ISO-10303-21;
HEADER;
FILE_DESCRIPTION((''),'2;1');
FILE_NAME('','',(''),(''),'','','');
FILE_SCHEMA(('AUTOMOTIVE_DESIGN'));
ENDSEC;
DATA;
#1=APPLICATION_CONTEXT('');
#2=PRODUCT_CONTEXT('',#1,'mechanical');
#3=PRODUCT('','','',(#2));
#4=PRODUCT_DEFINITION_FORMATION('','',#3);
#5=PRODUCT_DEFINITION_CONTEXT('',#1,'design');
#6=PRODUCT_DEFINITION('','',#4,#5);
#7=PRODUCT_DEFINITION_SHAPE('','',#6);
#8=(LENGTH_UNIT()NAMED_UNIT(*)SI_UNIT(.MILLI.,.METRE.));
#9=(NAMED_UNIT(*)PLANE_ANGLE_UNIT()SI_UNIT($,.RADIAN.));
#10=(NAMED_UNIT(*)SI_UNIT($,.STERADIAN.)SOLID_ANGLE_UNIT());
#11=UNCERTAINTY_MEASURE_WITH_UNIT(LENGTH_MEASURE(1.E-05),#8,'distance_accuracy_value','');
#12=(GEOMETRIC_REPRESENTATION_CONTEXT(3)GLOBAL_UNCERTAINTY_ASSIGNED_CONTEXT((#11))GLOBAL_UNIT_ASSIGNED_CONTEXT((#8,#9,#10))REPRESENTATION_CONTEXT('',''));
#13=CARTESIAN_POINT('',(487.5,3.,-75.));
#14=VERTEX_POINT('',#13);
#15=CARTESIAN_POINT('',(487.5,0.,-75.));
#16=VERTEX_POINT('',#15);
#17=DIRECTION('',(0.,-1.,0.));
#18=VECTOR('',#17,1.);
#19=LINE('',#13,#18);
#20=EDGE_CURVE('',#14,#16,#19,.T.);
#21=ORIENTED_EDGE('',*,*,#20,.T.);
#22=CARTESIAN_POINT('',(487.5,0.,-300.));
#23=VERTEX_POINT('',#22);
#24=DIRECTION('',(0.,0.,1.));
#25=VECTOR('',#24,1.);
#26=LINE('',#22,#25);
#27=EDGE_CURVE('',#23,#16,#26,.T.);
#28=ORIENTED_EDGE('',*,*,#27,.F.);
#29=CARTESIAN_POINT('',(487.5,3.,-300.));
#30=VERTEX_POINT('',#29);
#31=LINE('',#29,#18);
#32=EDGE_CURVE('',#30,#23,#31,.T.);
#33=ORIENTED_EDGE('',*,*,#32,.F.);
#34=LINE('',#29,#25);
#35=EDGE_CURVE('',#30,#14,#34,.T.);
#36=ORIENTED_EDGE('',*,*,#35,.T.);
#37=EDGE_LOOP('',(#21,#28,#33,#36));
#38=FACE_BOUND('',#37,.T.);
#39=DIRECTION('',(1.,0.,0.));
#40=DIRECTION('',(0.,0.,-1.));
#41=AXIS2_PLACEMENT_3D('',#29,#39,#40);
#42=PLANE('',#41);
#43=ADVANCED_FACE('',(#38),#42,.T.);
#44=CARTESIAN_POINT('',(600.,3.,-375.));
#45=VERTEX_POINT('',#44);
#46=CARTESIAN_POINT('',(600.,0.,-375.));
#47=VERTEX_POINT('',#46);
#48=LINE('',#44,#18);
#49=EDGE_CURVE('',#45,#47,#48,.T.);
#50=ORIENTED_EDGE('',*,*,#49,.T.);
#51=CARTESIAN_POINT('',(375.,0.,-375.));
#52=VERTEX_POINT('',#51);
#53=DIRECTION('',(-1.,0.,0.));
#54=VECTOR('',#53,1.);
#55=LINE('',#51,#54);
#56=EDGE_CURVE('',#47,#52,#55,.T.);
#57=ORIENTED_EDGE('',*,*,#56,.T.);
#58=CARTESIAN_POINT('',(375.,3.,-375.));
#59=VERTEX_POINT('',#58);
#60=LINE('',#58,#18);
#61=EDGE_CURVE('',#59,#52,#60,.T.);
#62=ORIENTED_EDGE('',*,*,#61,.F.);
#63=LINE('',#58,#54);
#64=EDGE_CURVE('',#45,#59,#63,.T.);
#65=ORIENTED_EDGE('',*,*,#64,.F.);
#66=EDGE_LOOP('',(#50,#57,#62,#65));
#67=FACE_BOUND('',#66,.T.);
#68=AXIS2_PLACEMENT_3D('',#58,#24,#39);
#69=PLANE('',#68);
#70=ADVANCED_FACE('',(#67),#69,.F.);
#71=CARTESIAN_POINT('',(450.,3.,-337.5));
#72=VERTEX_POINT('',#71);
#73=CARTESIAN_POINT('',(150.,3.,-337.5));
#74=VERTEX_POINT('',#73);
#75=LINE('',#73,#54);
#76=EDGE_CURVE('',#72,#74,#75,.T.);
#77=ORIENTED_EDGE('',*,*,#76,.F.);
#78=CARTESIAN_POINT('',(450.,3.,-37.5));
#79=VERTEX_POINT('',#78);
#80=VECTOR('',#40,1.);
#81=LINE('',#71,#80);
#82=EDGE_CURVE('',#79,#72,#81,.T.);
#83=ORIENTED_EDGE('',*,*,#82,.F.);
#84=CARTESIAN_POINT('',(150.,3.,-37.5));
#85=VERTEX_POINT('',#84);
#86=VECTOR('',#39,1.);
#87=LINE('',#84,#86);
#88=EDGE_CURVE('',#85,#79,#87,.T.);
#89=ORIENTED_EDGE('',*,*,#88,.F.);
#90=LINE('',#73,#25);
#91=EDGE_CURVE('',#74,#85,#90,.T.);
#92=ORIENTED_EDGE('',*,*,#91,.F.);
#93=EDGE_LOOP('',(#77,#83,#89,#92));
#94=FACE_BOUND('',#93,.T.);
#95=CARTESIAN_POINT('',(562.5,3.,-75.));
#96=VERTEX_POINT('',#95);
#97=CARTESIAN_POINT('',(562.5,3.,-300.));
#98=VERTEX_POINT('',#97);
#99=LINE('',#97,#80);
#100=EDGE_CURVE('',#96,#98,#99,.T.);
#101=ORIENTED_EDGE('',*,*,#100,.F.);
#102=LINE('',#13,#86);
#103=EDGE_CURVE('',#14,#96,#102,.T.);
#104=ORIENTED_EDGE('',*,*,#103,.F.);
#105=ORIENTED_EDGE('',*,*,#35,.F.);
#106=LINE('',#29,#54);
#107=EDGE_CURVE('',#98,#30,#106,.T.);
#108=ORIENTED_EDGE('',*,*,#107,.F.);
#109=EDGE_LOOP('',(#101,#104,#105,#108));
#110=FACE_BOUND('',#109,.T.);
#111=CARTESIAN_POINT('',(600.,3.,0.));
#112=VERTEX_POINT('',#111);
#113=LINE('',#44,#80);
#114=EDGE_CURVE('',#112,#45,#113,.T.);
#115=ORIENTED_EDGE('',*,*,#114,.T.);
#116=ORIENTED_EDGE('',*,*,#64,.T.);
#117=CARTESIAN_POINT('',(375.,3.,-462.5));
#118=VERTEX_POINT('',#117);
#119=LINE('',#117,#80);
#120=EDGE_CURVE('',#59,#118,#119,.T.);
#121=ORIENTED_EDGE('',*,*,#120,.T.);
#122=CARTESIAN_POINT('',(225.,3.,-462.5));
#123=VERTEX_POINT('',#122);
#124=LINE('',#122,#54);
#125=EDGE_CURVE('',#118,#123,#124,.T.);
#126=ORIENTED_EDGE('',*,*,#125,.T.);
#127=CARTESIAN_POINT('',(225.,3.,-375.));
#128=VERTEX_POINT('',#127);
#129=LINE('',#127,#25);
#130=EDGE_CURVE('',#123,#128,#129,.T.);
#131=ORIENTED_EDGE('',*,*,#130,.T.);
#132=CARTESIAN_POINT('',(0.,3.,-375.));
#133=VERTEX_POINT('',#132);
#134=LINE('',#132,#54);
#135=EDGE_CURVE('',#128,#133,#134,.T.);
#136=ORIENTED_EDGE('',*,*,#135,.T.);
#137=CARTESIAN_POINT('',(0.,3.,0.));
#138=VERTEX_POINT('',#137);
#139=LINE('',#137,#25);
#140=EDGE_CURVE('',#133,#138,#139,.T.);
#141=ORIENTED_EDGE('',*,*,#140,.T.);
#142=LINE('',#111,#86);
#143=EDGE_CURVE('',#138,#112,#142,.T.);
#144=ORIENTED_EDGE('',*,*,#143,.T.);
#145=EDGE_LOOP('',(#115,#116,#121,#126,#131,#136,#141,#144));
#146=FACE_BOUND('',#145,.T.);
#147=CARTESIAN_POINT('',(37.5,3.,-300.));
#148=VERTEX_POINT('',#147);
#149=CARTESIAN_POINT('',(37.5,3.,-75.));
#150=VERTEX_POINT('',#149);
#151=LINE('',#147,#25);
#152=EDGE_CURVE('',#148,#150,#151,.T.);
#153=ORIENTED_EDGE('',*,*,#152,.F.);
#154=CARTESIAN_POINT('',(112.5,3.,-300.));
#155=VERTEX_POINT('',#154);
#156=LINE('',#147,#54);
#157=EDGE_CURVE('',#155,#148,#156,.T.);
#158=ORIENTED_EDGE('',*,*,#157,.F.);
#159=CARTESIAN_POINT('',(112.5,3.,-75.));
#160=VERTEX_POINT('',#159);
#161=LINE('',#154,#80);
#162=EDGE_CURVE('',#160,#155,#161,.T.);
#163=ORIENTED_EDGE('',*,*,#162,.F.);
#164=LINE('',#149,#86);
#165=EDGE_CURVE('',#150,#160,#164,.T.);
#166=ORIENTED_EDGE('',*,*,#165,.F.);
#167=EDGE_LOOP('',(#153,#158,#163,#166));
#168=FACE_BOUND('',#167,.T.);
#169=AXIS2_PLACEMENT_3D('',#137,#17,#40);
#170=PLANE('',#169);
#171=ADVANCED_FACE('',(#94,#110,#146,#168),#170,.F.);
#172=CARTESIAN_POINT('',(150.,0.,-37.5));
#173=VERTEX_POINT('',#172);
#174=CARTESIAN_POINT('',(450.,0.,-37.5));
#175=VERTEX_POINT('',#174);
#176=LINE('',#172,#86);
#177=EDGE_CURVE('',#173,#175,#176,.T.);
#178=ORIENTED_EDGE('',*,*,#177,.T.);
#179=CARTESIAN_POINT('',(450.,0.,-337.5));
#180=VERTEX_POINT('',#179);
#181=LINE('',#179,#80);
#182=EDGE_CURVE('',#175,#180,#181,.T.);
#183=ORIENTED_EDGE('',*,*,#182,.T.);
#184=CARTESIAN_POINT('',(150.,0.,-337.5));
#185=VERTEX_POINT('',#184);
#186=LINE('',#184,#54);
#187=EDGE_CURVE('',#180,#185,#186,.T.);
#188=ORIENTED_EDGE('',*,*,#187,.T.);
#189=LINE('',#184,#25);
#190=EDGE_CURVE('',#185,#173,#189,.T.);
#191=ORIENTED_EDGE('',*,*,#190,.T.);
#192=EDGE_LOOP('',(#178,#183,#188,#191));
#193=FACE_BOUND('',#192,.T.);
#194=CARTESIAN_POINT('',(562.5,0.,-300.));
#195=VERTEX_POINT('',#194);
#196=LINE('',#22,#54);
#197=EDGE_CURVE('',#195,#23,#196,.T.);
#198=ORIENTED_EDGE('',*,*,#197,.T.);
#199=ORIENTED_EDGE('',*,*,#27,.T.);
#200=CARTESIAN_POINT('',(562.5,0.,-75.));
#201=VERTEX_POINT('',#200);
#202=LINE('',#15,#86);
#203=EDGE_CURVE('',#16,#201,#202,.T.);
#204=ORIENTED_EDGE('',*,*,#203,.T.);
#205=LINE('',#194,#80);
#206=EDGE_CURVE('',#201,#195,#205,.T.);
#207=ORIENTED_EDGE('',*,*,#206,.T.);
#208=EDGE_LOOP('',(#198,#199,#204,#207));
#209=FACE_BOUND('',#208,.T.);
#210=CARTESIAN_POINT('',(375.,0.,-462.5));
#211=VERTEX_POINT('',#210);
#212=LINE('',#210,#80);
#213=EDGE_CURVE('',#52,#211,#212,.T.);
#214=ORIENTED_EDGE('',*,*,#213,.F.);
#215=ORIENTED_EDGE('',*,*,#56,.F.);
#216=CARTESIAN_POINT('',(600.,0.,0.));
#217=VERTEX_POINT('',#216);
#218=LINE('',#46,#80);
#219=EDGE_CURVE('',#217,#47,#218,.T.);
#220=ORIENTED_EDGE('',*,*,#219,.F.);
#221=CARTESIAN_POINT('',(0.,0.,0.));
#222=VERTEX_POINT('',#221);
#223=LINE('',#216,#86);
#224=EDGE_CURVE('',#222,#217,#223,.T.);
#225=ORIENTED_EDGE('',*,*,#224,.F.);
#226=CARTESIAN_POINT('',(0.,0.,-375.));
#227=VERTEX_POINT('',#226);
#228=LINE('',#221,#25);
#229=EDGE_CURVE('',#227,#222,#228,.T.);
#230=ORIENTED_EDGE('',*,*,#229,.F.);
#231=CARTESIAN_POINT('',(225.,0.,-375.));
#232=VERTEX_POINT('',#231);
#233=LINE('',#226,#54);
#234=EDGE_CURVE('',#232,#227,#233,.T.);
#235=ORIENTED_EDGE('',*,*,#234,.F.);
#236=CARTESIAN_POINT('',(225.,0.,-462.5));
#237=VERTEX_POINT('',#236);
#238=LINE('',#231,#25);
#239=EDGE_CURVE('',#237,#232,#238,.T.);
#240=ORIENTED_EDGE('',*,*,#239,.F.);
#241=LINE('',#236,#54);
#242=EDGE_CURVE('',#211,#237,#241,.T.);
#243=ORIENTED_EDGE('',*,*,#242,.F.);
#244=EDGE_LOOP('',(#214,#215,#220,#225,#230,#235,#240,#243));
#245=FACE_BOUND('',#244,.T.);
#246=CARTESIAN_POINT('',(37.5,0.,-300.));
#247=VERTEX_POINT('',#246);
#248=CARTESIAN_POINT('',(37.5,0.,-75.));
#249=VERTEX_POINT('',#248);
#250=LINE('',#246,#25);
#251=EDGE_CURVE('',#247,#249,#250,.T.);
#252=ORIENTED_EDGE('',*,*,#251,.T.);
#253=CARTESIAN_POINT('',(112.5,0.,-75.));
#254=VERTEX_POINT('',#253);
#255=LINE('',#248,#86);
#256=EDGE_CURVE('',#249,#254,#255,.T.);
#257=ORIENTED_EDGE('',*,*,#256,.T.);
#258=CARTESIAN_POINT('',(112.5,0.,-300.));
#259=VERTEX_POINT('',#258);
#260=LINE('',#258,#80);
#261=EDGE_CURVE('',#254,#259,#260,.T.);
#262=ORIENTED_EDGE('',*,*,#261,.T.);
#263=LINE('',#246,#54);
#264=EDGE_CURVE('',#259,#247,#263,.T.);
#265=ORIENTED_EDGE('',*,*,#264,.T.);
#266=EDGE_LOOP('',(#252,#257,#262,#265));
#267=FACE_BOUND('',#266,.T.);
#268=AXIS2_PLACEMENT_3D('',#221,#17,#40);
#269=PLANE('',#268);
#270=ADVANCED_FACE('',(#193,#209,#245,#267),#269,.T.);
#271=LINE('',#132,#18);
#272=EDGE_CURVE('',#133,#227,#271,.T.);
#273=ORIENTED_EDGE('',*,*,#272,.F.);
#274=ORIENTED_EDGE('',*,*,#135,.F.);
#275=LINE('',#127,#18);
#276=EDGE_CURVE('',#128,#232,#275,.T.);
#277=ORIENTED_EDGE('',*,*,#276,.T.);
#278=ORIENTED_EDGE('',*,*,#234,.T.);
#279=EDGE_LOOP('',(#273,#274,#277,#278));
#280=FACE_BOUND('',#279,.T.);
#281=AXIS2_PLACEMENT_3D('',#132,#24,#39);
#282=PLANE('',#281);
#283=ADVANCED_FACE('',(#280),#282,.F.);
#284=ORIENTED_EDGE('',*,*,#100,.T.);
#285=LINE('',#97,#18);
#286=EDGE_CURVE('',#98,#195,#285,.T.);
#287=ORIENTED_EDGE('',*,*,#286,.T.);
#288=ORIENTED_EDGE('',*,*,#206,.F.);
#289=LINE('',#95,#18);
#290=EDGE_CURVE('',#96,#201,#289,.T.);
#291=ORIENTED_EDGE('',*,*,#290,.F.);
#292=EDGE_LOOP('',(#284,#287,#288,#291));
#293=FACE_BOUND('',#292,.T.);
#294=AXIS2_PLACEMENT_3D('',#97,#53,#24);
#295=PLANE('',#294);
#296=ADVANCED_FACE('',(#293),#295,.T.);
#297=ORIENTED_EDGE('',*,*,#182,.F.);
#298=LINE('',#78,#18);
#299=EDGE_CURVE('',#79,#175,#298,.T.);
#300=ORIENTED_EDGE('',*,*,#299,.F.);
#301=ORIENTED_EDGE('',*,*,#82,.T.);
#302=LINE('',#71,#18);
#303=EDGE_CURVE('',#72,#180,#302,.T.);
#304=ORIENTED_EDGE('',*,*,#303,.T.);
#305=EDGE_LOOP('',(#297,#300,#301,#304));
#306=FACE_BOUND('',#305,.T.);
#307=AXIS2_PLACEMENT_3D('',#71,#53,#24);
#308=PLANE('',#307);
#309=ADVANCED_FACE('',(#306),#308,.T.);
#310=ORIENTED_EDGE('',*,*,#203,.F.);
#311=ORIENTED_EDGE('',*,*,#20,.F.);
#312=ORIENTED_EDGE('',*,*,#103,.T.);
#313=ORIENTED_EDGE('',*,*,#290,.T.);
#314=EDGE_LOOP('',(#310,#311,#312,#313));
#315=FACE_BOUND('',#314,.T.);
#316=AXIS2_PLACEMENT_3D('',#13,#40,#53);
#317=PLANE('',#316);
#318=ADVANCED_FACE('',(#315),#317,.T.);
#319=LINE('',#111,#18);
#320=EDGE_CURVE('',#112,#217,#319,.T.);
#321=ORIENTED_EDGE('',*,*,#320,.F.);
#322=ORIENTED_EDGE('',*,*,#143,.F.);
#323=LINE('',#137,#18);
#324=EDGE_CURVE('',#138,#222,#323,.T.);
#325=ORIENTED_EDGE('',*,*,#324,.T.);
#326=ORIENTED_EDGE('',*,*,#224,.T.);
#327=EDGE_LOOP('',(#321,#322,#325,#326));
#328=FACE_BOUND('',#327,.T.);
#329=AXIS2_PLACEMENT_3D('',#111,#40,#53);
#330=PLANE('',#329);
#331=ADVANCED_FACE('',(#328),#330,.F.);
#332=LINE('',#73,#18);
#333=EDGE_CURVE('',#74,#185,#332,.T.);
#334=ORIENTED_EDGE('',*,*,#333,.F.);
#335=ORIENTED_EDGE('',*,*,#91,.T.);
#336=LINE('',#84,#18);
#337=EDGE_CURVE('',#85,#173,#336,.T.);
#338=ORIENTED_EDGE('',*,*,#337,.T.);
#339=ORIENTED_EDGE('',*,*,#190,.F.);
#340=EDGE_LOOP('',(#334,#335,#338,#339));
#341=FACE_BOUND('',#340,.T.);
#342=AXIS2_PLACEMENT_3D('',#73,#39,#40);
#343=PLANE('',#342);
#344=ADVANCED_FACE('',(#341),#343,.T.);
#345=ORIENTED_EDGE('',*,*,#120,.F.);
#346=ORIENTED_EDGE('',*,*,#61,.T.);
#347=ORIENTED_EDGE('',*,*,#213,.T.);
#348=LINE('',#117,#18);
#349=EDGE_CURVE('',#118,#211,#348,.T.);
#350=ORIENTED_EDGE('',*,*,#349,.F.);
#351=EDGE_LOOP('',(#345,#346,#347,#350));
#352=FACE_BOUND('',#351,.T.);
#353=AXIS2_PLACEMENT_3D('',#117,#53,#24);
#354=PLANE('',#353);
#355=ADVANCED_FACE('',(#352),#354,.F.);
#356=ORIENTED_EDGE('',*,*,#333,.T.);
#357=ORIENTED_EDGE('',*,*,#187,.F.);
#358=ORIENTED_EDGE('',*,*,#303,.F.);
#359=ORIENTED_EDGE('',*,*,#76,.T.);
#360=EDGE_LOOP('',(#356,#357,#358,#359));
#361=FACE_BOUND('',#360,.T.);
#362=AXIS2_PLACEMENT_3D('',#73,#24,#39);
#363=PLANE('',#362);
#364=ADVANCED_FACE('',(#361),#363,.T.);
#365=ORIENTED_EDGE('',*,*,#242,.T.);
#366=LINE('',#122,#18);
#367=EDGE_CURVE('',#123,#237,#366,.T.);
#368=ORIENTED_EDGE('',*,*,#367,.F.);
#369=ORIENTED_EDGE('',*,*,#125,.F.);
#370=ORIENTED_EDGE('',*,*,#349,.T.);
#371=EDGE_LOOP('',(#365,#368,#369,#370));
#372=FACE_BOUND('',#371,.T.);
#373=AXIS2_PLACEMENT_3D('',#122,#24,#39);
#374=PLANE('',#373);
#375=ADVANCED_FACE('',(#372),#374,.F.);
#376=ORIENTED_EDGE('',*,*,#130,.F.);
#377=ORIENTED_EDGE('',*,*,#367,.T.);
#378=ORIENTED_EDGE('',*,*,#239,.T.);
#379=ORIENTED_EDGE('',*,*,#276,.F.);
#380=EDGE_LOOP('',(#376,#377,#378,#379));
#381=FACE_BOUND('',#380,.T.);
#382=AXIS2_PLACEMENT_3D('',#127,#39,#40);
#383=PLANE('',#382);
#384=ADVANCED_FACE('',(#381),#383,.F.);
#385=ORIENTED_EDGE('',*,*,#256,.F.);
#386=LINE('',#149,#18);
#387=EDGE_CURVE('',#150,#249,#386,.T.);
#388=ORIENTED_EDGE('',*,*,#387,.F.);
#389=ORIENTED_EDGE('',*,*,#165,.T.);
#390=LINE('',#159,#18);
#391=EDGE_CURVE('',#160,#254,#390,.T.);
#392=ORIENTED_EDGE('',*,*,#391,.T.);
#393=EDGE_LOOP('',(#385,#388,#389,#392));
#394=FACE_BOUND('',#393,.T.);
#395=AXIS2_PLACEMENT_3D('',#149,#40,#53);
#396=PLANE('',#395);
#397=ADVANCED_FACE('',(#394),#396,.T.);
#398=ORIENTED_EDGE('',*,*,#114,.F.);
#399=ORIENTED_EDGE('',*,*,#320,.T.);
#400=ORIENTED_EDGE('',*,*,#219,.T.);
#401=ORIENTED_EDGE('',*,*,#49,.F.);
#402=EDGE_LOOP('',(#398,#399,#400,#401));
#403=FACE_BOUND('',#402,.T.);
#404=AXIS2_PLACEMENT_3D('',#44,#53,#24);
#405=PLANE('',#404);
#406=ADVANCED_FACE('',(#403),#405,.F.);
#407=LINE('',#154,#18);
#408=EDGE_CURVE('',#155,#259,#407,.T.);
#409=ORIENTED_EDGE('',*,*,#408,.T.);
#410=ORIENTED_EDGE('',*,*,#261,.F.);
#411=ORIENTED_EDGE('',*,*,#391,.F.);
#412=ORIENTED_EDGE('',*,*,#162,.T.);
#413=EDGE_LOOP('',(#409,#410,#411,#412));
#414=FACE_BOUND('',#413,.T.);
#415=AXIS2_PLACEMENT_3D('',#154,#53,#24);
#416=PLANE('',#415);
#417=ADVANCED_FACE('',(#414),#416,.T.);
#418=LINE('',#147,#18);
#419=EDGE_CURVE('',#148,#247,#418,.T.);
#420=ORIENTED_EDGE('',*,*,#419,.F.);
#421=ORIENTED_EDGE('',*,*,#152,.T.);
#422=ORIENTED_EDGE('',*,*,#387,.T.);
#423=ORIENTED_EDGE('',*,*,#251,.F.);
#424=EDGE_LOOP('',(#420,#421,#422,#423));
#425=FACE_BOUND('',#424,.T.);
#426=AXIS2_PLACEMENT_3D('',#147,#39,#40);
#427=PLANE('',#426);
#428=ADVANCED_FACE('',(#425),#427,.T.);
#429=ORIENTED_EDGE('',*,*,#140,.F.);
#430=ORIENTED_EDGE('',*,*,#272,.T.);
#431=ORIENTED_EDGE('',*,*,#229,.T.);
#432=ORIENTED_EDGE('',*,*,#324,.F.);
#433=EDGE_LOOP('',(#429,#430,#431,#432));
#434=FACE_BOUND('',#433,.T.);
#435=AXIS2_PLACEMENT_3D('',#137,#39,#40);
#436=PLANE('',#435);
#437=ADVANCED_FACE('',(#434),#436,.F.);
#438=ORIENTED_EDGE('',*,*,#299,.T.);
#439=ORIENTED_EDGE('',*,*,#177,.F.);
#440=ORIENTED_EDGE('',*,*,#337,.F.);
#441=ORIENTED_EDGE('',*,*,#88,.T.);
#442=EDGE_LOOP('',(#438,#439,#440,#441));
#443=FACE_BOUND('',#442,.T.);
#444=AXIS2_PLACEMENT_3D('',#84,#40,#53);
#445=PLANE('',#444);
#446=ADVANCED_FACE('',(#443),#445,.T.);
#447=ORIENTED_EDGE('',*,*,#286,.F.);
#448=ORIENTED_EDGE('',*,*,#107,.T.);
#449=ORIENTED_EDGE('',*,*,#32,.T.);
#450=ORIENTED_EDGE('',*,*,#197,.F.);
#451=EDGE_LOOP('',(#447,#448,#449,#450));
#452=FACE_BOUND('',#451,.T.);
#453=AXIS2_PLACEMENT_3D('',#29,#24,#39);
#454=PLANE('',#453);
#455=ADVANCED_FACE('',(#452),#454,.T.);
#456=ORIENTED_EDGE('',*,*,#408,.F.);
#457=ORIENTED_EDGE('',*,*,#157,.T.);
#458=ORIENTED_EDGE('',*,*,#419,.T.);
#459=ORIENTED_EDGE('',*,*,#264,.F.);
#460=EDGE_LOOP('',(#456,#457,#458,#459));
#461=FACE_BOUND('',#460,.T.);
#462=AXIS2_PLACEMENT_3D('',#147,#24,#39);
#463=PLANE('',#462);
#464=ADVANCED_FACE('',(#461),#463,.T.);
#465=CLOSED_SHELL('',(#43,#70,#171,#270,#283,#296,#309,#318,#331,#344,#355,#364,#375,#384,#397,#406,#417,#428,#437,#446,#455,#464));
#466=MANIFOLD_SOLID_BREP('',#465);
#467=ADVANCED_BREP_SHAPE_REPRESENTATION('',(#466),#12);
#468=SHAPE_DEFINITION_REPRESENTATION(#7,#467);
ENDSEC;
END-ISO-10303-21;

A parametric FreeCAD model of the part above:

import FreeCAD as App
import Part
import Sketcher

V = App.Vector


def add_polygon(sketch, points):
    """Adds a closed chain of lines whose ends are joined by coincident constraints."""
    first, n = sketch.GeometryCount, len(points)
    for a, b in zip(points, points[1:] + points[:1]):
        sketch.addGeometry(Part.LineSegment(App.Vector(*a, 0), App.Vector(*b, 0)), False)
    for i in range(n):
        sketch.addConstraint(Sketcher.Constraint("Coincident", first + i, 2, first + (i + 1) % n, 1))

doc = App.newDocument("Part")
params = doc.addObject("Spreadsheet::Sheet", "Params")
for row, (alias, value) in enumerate([
    ("sketch1_width", "600 mm"),
    ("sketch1_width2", "225 mm"),
    ("sketch1_width3", "75 mm"),
    ("sketch1_width4", "300 mm"),
    ("sketch1_height", "375 mm"),
    ("pad1_length", "3 mm"),
], start=1):
    params.set(f"A{row}", alias)
    params.set(f"B{row}", "=" + value)
    params.setAlias(f"B{row}", alias)

body = doc.addObject("PartDesign::Body", "Body")

# Sketch on XZ plane
sketch1 = body.newObject("Sketcher::SketchObject", "Sketch")
sketch1.AttachmentSupport = (doc.getObject("XZ_Plane"), [""])
sketch1.MapMode = "FlatFace"
add_polygon(sketch1, [(0, -375), (0, 0), (600, 0), (600, -375), (375, -375), (375, -462), (225, -462), (225, -375)])  # lines 0-7
add_polygon(sketch1, [(488, -75), (488, -300), (562, -300), (562, -75)])  # lines 8-11
add_polygon(sketch1, [(150, -38), (150, -338), (450, -338), (450, -38)])  # lines 12-15
add_polygon(sketch1, [(38, -75), (38, -300), (112, -300), (112, -75)])  # lines 16-19
sketch1.addConstraint(Sketcher.Constraint("Vertical", 0))
sketch1.addConstraint(Sketcher.Constraint("Horizontal", 1))
sketch1.addConstraint(Sketcher.Constraint("Vertical", 2))
sketch1.addConstraint(Sketcher.Constraint("Horizontal", 3))
sketch1.addConstraint(Sketcher.Constraint("Vertical", 4))
sketch1.addConstraint(Sketcher.Constraint("Horizontal", 5))
sketch1.addConstraint(Sketcher.Constraint("Vertical", 6))
sketch1.addConstraint(Sketcher.Constraint("Horizontal", 7))
sketch1.addConstraint(Sketcher.Constraint("Vertical", 8))
sketch1.addConstraint(Sketcher.Constraint("Horizontal", 9))
sketch1.addConstraint(Sketcher.Constraint("Vertical", 10))
sketch1.addConstraint(Sketcher.Constraint("Horizontal", 11))
sketch1.addConstraint(Sketcher.Constraint("Vertical", 12))
sketch1.addConstraint(Sketcher.Constraint("Horizontal", 13))
sketch1.addConstraint(Sketcher.Constraint("Vertical", 14))
sketch1.addConstraint(Sketcher.Constraint("Horizontal", 15))
sketch1.addConstraint(Sketcher.Constraint("Vertical", 16))
sketch1.addConstraint(Sketcher.Constraint("Horizontal", 17))
sketch1.addConstraint(Sketcher.Constraint("Vertical", 18))
sketch1.addConstraint(Sketcher.Constraint("Horizontal", 19))
sketch1.addConstraint(Sketcher.Constraint("Coincident", 0, 2, -1, 1))
sketch1.addConstraint(Sketcher.Constraint("Horizontal", 3, 2, 6, 2))
sketch1.addConstraint(Sketcher.Constraint("Horizontal", 9, 2, 16, 2))
sketch1.addConstraint(Sketcher.Constraint("Horizontal", 11, 2, 18, 2))
sketch1.addConstraint(Sketcher.Constraint("Equal", 3, 7))
sketch1.addConstraint(Sketcher.Constraint("Equal", 11, 17))
sketch1.addConstraint(Sketcher.Constraint("Equal", 7, 8))
sketch1.addConstraint(Sketcher.Constraint("Equal", 15, 12))
sketch1.addConstraint(Sketcher.Constraint("DistanceX", 1, 1, 1, 2, 600.0))
sketch1.addConstraint(Sketcher.Constraint("DistanceX", 3, 2, 3, 1, 225.0))
sketch1.addConstraint(Sketcher.Constraint("DistanceX", 9, 1, 9, 2, 75.0))
sketch1.addConstraint(Sketcher.Constraint("DistanceX", 13, 1, 13, 2, 300.0))
sketch1.addConstraint(Sketcher.Constraint("DistanceY", 0, 1, 0, 2, 375.0))
sketch1.addConstraint(Sketcher.Constraint("DistanceY", 4, 2, 4, 1, 87.5))
sketch1.addConstraint(Sketcher.Constraint("DistanceY", 8, 2, -1, 1, 300.0))
sketch1.addConstraint(Sketcher.Constraint("DistanceX", -1, 1, 12, 2, 150.0))
sketch1.addConstraint(Sketcher.Constraint("DistanceY", 5, 2, 12, 2, 125.0))
sketch1.addConstraint(Sketcher.Constraint("DistanceX", -1, 1, 8, 2, 487.5))
sketch1.addConstraint(Sketcher.Constraint("DistanceX", -1, 1, 16, 2, 37.5))
sketch1.setExpression("Constraints[48]", "Params.sketch1_width")
sketch1.setExpression("Constraints[49]", "Params.sketch1_width2")
sketch1.setExpression("Constraints[50]", "Params.sketch1_width3")
sketch1.setExpression("Constraints[51]", "Params.sketch1_width4")
sketch1.setExpression("Constraints[52]", "Params.sketch1_height")
pad1 = body.newObject("PartDesign::Pad", "Pad")
pad1.Profile = sketch1
pad1.setExpression("Length", "Params.pad1_length")
pad1.Reversed = True

doc.recompute()
